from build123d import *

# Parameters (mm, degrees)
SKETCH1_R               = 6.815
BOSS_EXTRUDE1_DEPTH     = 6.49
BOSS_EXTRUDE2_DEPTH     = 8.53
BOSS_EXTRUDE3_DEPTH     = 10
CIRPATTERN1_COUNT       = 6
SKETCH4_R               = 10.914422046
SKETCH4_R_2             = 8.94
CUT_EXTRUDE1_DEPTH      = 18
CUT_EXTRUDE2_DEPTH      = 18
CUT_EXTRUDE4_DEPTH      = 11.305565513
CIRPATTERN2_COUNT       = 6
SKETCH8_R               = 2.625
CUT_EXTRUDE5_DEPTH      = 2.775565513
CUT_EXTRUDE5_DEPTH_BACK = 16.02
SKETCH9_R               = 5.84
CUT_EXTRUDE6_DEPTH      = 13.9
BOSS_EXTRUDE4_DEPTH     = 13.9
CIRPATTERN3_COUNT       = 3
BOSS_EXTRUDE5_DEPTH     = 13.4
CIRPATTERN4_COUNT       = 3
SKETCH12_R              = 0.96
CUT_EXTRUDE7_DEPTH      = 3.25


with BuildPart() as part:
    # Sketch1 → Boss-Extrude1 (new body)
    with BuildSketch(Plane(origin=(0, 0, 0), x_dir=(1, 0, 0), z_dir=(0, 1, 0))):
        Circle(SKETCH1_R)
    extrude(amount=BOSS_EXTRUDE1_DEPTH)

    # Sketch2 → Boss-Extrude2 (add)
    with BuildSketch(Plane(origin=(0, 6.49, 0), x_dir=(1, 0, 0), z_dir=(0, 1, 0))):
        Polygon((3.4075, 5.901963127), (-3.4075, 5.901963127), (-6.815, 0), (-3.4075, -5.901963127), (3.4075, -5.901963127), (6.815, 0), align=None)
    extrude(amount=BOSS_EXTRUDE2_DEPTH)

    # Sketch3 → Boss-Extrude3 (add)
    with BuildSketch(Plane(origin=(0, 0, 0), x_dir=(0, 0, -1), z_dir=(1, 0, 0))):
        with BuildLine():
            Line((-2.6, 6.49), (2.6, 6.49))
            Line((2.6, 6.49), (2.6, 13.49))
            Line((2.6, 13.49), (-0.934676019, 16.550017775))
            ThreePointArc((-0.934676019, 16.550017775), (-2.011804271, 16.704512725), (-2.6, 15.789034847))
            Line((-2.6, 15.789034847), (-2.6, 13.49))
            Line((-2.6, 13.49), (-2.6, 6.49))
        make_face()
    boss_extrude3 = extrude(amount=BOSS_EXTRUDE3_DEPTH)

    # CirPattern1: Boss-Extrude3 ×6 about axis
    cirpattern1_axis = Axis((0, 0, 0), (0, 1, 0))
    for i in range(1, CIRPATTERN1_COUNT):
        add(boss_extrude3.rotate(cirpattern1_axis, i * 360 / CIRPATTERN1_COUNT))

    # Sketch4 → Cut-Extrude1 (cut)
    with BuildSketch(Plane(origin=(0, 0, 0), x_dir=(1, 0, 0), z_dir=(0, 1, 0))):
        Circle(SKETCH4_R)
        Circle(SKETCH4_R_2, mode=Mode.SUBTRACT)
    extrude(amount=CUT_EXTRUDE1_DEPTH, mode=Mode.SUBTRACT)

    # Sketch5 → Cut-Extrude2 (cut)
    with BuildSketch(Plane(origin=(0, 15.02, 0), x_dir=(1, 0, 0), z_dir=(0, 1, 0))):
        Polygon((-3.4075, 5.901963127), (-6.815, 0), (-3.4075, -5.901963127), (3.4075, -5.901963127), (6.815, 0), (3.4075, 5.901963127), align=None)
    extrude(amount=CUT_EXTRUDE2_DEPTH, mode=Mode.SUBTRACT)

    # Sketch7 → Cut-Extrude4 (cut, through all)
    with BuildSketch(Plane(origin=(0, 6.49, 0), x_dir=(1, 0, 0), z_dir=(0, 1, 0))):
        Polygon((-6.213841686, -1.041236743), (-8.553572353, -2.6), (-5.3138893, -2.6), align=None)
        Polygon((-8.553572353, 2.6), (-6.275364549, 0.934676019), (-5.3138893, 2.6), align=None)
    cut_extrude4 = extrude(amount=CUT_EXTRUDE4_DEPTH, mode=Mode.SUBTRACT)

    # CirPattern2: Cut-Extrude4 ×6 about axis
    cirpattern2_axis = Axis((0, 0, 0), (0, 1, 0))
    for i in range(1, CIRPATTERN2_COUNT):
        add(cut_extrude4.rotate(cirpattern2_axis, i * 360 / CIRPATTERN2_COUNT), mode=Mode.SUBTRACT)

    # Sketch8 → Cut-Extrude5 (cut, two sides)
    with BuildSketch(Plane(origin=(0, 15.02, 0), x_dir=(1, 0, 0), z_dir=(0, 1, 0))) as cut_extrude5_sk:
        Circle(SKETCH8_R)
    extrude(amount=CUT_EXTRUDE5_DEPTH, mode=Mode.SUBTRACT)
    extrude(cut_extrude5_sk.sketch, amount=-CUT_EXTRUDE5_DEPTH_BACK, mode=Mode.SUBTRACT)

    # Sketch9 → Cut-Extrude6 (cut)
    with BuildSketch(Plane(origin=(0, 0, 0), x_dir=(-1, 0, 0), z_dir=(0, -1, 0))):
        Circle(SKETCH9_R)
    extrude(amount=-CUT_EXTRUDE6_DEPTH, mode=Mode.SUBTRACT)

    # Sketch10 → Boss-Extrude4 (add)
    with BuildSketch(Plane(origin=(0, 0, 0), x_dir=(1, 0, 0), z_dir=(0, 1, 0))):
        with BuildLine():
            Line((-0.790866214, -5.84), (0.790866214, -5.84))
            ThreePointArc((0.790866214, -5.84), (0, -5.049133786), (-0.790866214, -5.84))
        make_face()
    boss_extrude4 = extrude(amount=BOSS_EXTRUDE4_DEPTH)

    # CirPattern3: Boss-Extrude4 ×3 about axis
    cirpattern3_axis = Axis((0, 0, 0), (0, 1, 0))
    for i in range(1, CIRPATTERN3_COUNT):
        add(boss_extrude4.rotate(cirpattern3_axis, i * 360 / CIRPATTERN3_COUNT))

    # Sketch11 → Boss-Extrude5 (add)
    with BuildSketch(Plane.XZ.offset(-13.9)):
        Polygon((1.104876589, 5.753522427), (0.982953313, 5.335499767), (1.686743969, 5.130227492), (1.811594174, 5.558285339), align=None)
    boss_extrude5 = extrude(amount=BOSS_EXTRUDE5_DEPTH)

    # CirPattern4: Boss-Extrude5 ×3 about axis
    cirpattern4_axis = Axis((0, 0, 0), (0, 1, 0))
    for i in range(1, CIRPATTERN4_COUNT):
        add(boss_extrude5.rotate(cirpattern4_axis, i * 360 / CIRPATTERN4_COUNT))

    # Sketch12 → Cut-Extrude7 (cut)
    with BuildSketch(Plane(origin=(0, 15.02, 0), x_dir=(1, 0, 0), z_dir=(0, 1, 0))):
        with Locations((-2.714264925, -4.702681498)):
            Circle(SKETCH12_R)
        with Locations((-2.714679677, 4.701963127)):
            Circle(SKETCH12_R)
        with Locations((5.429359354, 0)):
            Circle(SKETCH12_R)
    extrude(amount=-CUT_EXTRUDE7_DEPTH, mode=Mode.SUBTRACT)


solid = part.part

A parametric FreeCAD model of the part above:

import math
import FreeCAD as App
import Part
import Sketcher

V = App.Vector
Q = App.Units.Quantity


def add_polygon(sketch, points):
    """Adds a closed chain of lines whose ends are joined by coincident constraints."""
    first, n = sketch.GeometryCount, len(points)
    for a, b in zip(points, points[1:] + points[:1]):
        sketch.addGeometry(Part.LineSegment(App.Vector(*a, 0), App.Vector(*b, 0)), False)
    for i in range(n):
        sketch.addConstraint(Sketcher.Constraint("Coincident", first + i, 2, first + (i + 1) % n, 1))

doc = App.newDocument("Part")
body = doc.addObject("PartDesign::Body", "Body")

# Sketch on XZ plane
sketch1 = body.newObject("Sketcher::SketchObject", "Sketch")
sketch1.AttachmentSupport = (doc.getObject("XZ_Plane"), [""])
sketch1.MapMode = "FlatFace"
sketch1.addGeometry(Part.Circle(V(0, 0, 0), V(0, 0, 1), 7), False)
sketch1.addConstraint(Sketcher.Constraint("Coincident", 0, 3, -1, 1))
sketch1.addConstraint(Sketcher.Constraint("Diameter", 0, 13.63))
pad1 = body.newObject("PartDesign::Pad", "Pad")
pad1.Profile = sketch1
pad1.Length = 6.49
pad1.Reversed = True

# Sketch on XZ plane
sketch2 = body.newObject("Sketcher::SketchObject", "Sketch001")
sketch2.AttachmentSupport = (doc.getObject("XZ_Plane"), [""])
sketch2.MapMode = "FlatFace"
sketch2.AttachmentOffset = App.Placement(V(0, 0, -6.49), App.Rotation())
add_polygon(sketch2, [(3, -6), (-3, -6), (-7, 0), (-3, 6), (3, 6), (7, 0)])  # lines 0-5
sketch2.addConstraint(Sketcher.Constraint("Horizontal", 0))
sketch2.addConstraint(Sketcher.Constraint("Horizontal", 3))
sketch2.addConstraint(Sketcher.Constraint("Symmetric", 0, 2, 3, 2, -1, 1))
sketch2.addConstraint(Sketcher.Constraint("Symmetric", 1, 2, 4, 2, -1, 1))
sketch2.addConstraint(Sketcher.Constraint("PointOnObject", 1, 2, -1))
sketch2.addConstraint(Sketcher.Constraint("Parallel", 2, 5))
sketch2.addConstraint(Sketcher.Constraint("Vertical", 0, 2, 2, 2))
sketch2.addConstraint(Sketcher.Constraint("Angle", 1, Q("120 deg")))
sketch2.addConstraint(Sketcher.Constraint("DistanceX", 0, 2, 0, 1, 6.815))
sketch2.addConstraint(Sketcher.Constraint("DistanceX", 1, 2, 4, 2, 13.63))
pad2 = body.newObject("PartDesign::Pad", "Pad001")
pad2.Profile = sketch2
pad2.Length = 8.53
pad2.Reversed = True

# Sketch on YZ plane
sketch3 = body.newObject("Sketcher::SketchObject", "Sketch002")
sketch3.AttachmentSupport = (doc.getObject("YZ_Plane"), [""])
sketch3.MapMode = "FlatFace"
sketch3.addGeometry(Part.LineSegment(V(6.5, 2.6, 0), V(6.5, -2.6, 0)), False)
sketch3.addGeometry(Part.LineSegment(V(6.5, -2.6, 0), V(13.5, -2.6, 0)), False)
sketch3.addGeometry(Part.LineSegment(V(13.5, -2.6, 0), V(16.6, 0.9, 0)), False)
sketch3.addGeometry(Part.ArcOfCircle(Part.Circle(V(15.8, 1.6, 0), V(0, 0, 1), 1), math.radians(-41), math.radians(90)), False)
sketch3.addGeometry(Part.LineSegment(V(15.8, 2.6, 0), V(6.5, 2.6, 0)), False)
sketch3.addConstraint(Sketcher.Constraint("Coincident", 0, 2, 1, 1))
sketch3.addConstraint(Sketcher.Constraint("Coincident", 1, 2, 2, 1))
sketch3.addConstraint(Sketcher.Constraint("Tangent", 2, 2, 3, 1))
sketch3.addConstraint(Sketcher.Constraint("Tangent", 3, 2, 4, 1))
sketch3.addConstraint(Sketcher.Constraint("Coincident", 4, 2, 0, 1))
sketch3.addConstraint(Sketcher.Constraint("Vertical", 0))
sketch3.addConstraint(Sketcher.Constraint("Horizontal", 1))
sketch3.addConstraint(Sketcher.Constraint("Horizontal", 4))
sketch3.addConstraint(Sketcher.Constraint("DistanceX", 1, 1, 1, 2, 7.0))
sketch3.addConstraint(Sketcher.Constraint("DistanceY", 0, 2, 0, 1, 5.2))
sketch3.addConstraint(Sketcher.Constraint("DistanceY", 0, 2, -1, 1, 2.6))
sketch3.addConstraint(Sketcher.Constraint("DistanceX", -1, 1, 0, 2, 6.49))
sketch3.addConstraint(Sketcher.Constraint("Radius", 3, 1.006531))
sketch3.addConstraint(Sketcher.Constraint("DistanceX", 4, 2, 4, 1, 9.299035))
pad3 = body.newObject("PartDesign::Pad", "Pad002")
pad3.Profile = sketch3
pad3.Length = 10
doc.recompute()

polarpattern = body.newObject("PartDesign::PolarPattern", "PolarPattern")
polarpattern.Originals = [pad3]
polarpattern.Axis = (doc.getObject("Y_Axis"), [""])
polarpattern.Angle = 360
polarpattern.Occurrences = 6
body.Tip = polarpattern

# Sketch on XZ plane
sketch4 = body.newObject("Sketcher::SketchObject", "Sketch003")
sketch4.AttachmentSupport = (doc.getObject("XZ_Plane"), [""])
sketch4.MapMode = "FlatFace"
sketch4.addGeometry(Part.Circle(V(0, 0, 0), V(0, 0, 1), 11), False)
sketch4.addGeometry(Part.Circle(V(0, 0, 0), V(0, 0, 1), 9), False)
sketch4.addConstraint(Sketcher.Constraint("Coincident", 0, 3, -1, 1))
sketch4.addConstraint(Sketcher.Constraint("Coincident", 1, 3, -1, 1))
sketch4.addConstraint(Sketcher.Constraint("Diameter", 1, 17.88))
sketch4.addConstraint(Sketcher.Constraint("Diameter", 0, 21.828844))
pocket1 = body.newObject("PartDesign::Pocket", "Pocket")
pocket1.Profile = sketch4
pocket1.Length = 18

# Sketch on XZ plane
sketch5 = body.newObject("Sketcher::SketchObject", "Sketch004")
sketch5.AttachmentSupport = (doc.getObject("XZ_Plane"), [""])
sketch5.MapMode = "FlatFace"
sketch5.AttachmentOffset = App.Placement(V(0, 0, -15.02), App.Rotation())
add_polygon(sketch5, [(-3, -6), (-7, 0), (-3, 6), (3, 6), (7, 0), (3, -6)])  # lines 0-5
sketch5.addConstraint(Sketcher.Constraint("Horizontal", 2))
sketch5.addConstraint(Sketcher.Constraint("Horizontal", 5))
sketch5.addConstraint(Sketcher.Constraint("Symmetric", 0, 2, 3, 2, -1, 1))
sketch5.addConstraint(Sketcher.Constraint("Symmetric", 1, 2, 4, 2, -1, 1))
sketch5.addConstraint(Sketcher.Constraint("PointOnObject", 0, 2, -1))
sketch5.addConstraint(Sketcher.Constraint("Parallel", 0, 3))
sketch5.addConstraint(Sketcher.Constraint("Vertical", 2, 2, 4, 2))
sketch5.addConstraint(Sketcher.Constraint("Angle", 0, Q("120 deg")))
sketch5.addConstraint(Sketcher.Constraint("DistanceX", 2, 1, 2, 2, 6.815))
sketch5.addConstraint(Sketcher.Constraint("DistanceX", 0, 2, 3, 2, 13.63))
pocket2 = body.newObject("PartDesign::Pocket", "Pocket001")
pocket2.Profile = sketch5
pocket2.Length = 18

# Sketch on XZ plane
sketch6 = body.newObject("Sketcher::SketchObject", "Sketch005")
sketch6.AttachmentSupport = (doc.getObject("XZ_Plane"), [""])
sketch6.MapMode = "FlatFace"
sketch6.AttachmentOffset = App.Placement(V(0, 0, -6.49), App.Rotation())
add_polygon(sketch6, [(-6.2, 1), (-8.6, 2.6), (-5.3, 2.6)])  # lines 0-2
add_polygon(sketch6, [(-8.6, -2.6), (-6.3, -0.9), (-5.3, -2.6)])  # lines 3-5
sketch6.addConstraint(Sketcher.Constraint("Horizontal", 1))
sketch6.addConstraint(Sketcher.Constraint("Horizontal", 5))
sketch6.addConstraint(Sketcher.Constraint("Symmetric", 1, 2, 4, 2, -1))
sketch6.addConstraint(Sketcher.Constraint("Vertical", 0, 2, 5, 2))
sketch6.addConstraint(Sketcher.Constraint("Angle", 2, Q("-120 deg")))
sketch6.addConstraint(Sketcher.Constraint("Angle", 4, Q("-60 deg")))
sketch6.addConstraint(Sketcher.Constraint("DistanceY", -1, 1, 0, 2, 2.6))
sketch6.addConstraint(Sketcher.Constraint("Distance", 0, 2.81142))
sketch6.addConstraint(Sketcher.Constraint("Distance", 4, 1.92295))
sketch6.addConstraint(Sketcher.Constraint("DistanceX", 1, 1, 1, 2, 3.239683))
sketch6.addConstraint(Sketcher.Constraint("DistanceX", 1, 2, -1, 1, 5.313889))
pocket3 = body.newObject("PartDesign::Pocket", "Pocket002")
pocket3.Profile = sketch6
pocket3.Type = "ThroughAll"
doc.recompute()

polarpattern2 = body.newObject("PartDesign::PolarPattern", "PolarPattern001")
polarpattern2.Originals = [pocket3]
polarpattern2.Axis = (doc.getObject("Y_Axis"), [""])
polarpattern2.Angle = 360
polarpattern2.Occurrences = 6
body.Tip = polarpattern2

# Sketch on XZ plane
sketch7 = body.newObject("Sketcher::SketchObject", "Sketch006")
sketch7.AttachmentSupport = (doc.getObject("XZ_Plane"), [""])
sketch7.MapMode = "FlatFace"
sketch7.AttachmentOffset = App.Placement(V(0, 0, -15.02), App.Rotation())
sketch7.addGeometry(Part.Circle(V(0, 0, 0), V(0, 0, 1), 2.6), False)
sketch7.addConstraint(Sketcher.Constraint("Coincident", 0, 3, -1, 1))
sketch7.addConstraint(Sketcher.Constraint("Diameter", 0, 5.25))
pocket4 = body.newObject("PartDesign::Pocket", "Pocket003")
pocket4.Profile = sketch7
pocket4.Type = "ThroughAll"
pocket4.Midplane = True

# Sketch on XZ plane
sketch8 = body.newObject("Sketcher::SketchObject", "Sketch007")
sketch8.AttachmentSupport = (doc.getObject("XZ_Plane"), [""])
sketch8.MapMode = "FlatFace"
sketch8.addGeometry(Part.Circle(V(0, 0, 0), V(0, 0, 1), 6), False)
sketch8.addConstraint(Sketcher.Constraint("Coincident", 0, 3, -1, 1))
sketch8.addConstraint(Sketcher.Constraint("Diameter", 0, 11.68))
pocket5 = body.newObject("PartDesign::Pocket", "Pocket004")
pocket5.Profile = sketch8
pocket5.Length = 13.9

# Sketch on XZ plane
sketch9 = body.newObject("Sketcher::SketchObject", "Sketch008")
sketch9.AttachmentSupport = (doc.getObject("XZ_Plane"), [""])
sketch9.MapMode = "FlatFace"
sketch9.addGeometry(Part.LineSegment(V(-0.8, 5.8, 0), V(0.8, 5.8, 0)), False)
sketch9.addGeometry(Part.ArcOfCircle(Part.Circle(V(0, 5.8, 0), V(0, 0, 1), 0.8), math.radians(180), math.radians(360)), False)
sketch9.addConstraint(Sketcher.Constraint("Coincident", 0, 1, 1, 1))
sketch9.addConstraint(Sketcher.Constraint("Coincident", 1, 2, 0, 2))
sketch9.addConstraint(Sketcher.Constraint("Horizontal", 0))
sketch9.addConstraint(Sketcher.Constraint("PointOnObject", 1, 3, -2))
sketch9.addConstraint(Sketcher.Constraint("Horizontal", 1, 3, 0, 1))
sketch9.addConstraint(Sketcher.Constraint("DistanceY", -1, 1, 1, 3, 5.84))
sketch9.addConstraint(Sketcher.Constraint("Radius", 1, 0.790866))
pad4 = body.newObject("PartDesign::Pad", "Pad003")
pad4.Profile = sketch9
pad4.Length = 13.9
pad4.Reversed = True
doc.recompute()

polarpattern3 = body.newObject("PartDesign::PolarPattern", "PolarPattern002")
polarpattern3.Originals = [pad4]
polarpattern3.Axis = (doc.getObject("Y_Axis"), [""])
polarpattern3.Angle = 360
polarpattern3.Occurrences = 3
body.Tip = polarpattern3

# Sketch on XZ plane
sketch10 = body.newObject("Sketcher::SketchObject", "Sketch009")
sketch10.AttachmentSupport = (doc.getObject("XZ_Plane"), [""])
sketch10.MapMode = "FlatFace"
sketch10.AttachmentOffset = App.Placement(V(0, 0, -13.9), App.Rotation())
add_polygon(sketch10, [(1.1, 5.75), (0.98, 5.34), (1.69, 5.13), (1.81, 5.56)])  # lines 0-3
sketch10.addConstraint(Sketcher.Constraint("Perpendicular", 0, 1))
sketch10.addConstraint(Sketcher.Constraint("Perpendicular", 1, 2))
sketch10.addConstraint(Sketcher.Constraint("DistanceY", -1, 1, 0, 2, 5.3355))
sketch10.addConstraint(Sketcher.Constraint("Distance", 0, 0.43544))
sketch10.addConstraint(Sketcher.Constraint("Distance", 3, 0.73319))
sketch10.addConstraint(Sketcher.Constraint("DistanceX", 0, 2, 1, 2, 0.703791))
sketch10.addConstraint(Sketcher.Constraint("DistanceX", 1, 2, 2, 2, 0.12485))
sketch10.addConstraint(Sketcher.Constraint("DistanceX", -1, 1, 0, 2, 0.982953))
pad5 = body.newObject("PartDesign::Pad", "Pad004")
pad5.Profile = sketch10
pad5.Length = 13.4
doc.recompute()

polarpattern4 = body.newObject("PartDesign::PolarPattern", "PolarPattern003")
polarpattern4.Originals = [pad5]
polarpattern4.Axis = (doc.getObject("Y_Axis"), [""])
polarpattern4.Angle = 360
polarpattern4.Occurrences = 3
body.Tip = polarpattern4

# Sketch on XZ plane
sketch11 = body.newObject("Sketcher::SketchObject", "Sketch010")
sketch11.AttachmentSupport = (doc.getObject("XZ_Plane"), [""])
sketch11.MapMode = "FlatFace"
sketch11.AttachmentOffset = App.Placement(V(0, 0, -15.02), App.Rotation())
sketch11.addGeometry(Part.Circle(V(-2.7, 4.7, 0), V(0, 0, 1), 1), False)
sketch11.addGeometry(Part.Circle(V(-2.7, -4.7, 0), V(0, 0, 1), 1), False)
sketch11.addGeometry(Part.Circle(V(5.4, 0, 0), V(0, 0, 1), 1), False)
sketch11.addConstraint(Sketcher.Constraint("Equal", 0, 1))
sketch11.addConstraint(Sketcher.Constraint("Equal", 1, 2))
sketch11.addConstraint(Sketcher.Constraint("PointOnObject", 2, 3, -1))
sketch11.addConstraint(Sketcher.Constraint("Diameter", 0, 1.92))
sketch11.addConstraint(Sketcher.Constraint("DistanceY", -1, 1, 0, 3, 4.702681))
sketch11.addConstraint(Sketcher.Constraint("DistanceX", 1, 3, -1, 1, 2.71468))
sketch11.addConstraint(Sketcher.Constraint("DistanceX", -1, 1, 2, 3, 5.429359))
sketch11.addConstraint(Sketcher.Constraint("DistanceX", 0, 3, -1, 1, 2.714265))
sketch11.addConstraint(Sketcher.Constraint("DistanceY", 1, 3, -1, 1, 4.701963))
pocket6 = body.newObject("PartDesign::Pocket", "Pocket005")
pocket6.Profile = sketch11
pocket6.Length = 3.25
pocket6.Reversed = True

doc.recompute()
